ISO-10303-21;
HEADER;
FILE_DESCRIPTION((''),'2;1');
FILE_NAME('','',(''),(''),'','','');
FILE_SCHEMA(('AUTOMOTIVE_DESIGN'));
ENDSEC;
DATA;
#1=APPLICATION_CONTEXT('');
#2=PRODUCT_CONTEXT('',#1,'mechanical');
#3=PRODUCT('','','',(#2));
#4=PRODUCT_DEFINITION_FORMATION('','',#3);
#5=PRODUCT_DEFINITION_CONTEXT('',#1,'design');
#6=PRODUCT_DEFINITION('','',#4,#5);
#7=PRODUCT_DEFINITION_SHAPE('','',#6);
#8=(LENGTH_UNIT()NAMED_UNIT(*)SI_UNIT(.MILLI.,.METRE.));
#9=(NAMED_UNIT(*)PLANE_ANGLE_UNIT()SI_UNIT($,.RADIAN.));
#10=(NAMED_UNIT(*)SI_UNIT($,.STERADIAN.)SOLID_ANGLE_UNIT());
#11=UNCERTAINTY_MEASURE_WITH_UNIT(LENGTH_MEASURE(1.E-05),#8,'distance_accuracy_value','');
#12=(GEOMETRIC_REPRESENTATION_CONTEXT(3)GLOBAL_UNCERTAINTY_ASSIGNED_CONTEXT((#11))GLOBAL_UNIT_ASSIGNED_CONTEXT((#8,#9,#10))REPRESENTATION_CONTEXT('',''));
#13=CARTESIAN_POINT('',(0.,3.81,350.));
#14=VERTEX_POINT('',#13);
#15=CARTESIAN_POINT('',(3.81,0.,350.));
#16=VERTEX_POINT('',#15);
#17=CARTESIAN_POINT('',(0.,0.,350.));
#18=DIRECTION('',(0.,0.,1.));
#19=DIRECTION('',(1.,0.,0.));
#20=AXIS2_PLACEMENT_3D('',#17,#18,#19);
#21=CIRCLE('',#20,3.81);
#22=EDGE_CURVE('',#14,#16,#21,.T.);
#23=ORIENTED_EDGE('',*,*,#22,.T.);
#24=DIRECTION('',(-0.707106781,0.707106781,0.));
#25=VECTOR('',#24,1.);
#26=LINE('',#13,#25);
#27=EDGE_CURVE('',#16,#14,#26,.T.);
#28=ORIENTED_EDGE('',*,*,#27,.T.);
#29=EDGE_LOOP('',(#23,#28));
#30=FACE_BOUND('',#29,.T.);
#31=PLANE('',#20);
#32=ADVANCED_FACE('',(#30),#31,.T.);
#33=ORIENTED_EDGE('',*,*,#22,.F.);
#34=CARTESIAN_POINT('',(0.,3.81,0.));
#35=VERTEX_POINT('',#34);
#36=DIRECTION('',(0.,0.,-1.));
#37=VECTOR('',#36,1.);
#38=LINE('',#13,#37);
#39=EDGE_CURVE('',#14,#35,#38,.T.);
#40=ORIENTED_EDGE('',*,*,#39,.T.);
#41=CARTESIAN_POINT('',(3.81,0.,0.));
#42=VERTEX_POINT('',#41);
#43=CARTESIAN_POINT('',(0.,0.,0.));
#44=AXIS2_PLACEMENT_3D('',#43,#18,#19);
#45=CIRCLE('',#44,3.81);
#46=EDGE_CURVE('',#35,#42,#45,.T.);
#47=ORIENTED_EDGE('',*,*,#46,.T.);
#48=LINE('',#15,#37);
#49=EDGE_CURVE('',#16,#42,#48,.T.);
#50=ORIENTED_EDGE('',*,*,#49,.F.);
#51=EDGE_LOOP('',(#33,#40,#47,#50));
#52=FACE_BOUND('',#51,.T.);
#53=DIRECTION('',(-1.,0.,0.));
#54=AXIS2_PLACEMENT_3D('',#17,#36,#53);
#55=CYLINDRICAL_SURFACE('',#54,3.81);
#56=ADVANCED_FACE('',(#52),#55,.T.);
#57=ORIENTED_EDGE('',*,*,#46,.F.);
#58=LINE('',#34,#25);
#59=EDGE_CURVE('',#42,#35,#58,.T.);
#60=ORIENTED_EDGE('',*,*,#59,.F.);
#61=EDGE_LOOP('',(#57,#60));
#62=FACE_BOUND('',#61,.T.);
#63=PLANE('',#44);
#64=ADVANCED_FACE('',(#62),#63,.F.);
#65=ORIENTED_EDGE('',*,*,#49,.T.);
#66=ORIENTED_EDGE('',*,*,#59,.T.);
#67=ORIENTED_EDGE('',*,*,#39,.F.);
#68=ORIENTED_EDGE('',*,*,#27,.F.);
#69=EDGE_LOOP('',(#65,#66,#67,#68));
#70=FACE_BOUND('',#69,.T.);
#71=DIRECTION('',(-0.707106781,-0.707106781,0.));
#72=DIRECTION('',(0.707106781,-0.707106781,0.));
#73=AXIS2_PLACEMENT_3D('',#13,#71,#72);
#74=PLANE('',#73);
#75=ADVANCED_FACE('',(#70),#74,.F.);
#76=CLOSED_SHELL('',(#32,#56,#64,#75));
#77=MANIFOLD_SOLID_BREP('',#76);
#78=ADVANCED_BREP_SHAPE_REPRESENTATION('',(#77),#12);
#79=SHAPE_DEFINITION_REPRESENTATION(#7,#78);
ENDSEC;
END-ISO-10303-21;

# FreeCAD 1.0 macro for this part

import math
import FreeCAD as App
import Part
import Sketcher

V = App.Vector
Q = App.Units.Quantity

doc = App.newDocument("Part")
params = doc.addObject("Spreadsheet::Sheet", "Params")
for row, (alias, value) in enumerate([
    ("sketch1_radius", "3.81 mm"),
    ("pad1_length", "350 mm"),
], start=1):
    params.set(f"A{row}", alias)
    params.set(f"B{row}", "=" + value)
    params.setAlias(f"B{row}", alias)

body = doc.addObject("PartDesign::Body", "Body")

sketch1 = body.newObject("Sketcher::SketchObject", "Sketch")
sketch1.AttachmentSupport = (doc.getObject("XY_Plane"), [""])
sketch1.MapMode = "FlatFace"
sketch1.addGeometry([
    Part.LineSegment(V(3.8, 0, 0), V(0, 3.8, 0)),
    Part.ArcOfCircle(Part.Circle(V(0, 0, 0), V(0, 0, 1), 3.8), math.radians(90), math.radians(360)),
], False)
sketch1.addConstraint([
    Sketcher.Constraint("Coincident", 0, 1, 1, 2),
    Sketcher.Constraint("Coincident", 1, 1, 0, 2),
    Sketcher.Constraint("Coincident", 1, 3, -1, 1),
    Sketcher.Constraint("PointOnObject", 0, 1, -1),
    Sketcher.Constraint("PointOnObject", 1, 1, -2),
    Sketcher.Constraint("Radius", 1, Q("3.81 mm")),
])
sketch1.setExpression("Constraints[5]", "Params.sketch1_radius")
pad1 = body.newObject("PartDesign::Pad", "Pad")
pad1.Profile = sketch1
pad1.setExpression("Length", "Params.pad1_length")

doc.recompute()
